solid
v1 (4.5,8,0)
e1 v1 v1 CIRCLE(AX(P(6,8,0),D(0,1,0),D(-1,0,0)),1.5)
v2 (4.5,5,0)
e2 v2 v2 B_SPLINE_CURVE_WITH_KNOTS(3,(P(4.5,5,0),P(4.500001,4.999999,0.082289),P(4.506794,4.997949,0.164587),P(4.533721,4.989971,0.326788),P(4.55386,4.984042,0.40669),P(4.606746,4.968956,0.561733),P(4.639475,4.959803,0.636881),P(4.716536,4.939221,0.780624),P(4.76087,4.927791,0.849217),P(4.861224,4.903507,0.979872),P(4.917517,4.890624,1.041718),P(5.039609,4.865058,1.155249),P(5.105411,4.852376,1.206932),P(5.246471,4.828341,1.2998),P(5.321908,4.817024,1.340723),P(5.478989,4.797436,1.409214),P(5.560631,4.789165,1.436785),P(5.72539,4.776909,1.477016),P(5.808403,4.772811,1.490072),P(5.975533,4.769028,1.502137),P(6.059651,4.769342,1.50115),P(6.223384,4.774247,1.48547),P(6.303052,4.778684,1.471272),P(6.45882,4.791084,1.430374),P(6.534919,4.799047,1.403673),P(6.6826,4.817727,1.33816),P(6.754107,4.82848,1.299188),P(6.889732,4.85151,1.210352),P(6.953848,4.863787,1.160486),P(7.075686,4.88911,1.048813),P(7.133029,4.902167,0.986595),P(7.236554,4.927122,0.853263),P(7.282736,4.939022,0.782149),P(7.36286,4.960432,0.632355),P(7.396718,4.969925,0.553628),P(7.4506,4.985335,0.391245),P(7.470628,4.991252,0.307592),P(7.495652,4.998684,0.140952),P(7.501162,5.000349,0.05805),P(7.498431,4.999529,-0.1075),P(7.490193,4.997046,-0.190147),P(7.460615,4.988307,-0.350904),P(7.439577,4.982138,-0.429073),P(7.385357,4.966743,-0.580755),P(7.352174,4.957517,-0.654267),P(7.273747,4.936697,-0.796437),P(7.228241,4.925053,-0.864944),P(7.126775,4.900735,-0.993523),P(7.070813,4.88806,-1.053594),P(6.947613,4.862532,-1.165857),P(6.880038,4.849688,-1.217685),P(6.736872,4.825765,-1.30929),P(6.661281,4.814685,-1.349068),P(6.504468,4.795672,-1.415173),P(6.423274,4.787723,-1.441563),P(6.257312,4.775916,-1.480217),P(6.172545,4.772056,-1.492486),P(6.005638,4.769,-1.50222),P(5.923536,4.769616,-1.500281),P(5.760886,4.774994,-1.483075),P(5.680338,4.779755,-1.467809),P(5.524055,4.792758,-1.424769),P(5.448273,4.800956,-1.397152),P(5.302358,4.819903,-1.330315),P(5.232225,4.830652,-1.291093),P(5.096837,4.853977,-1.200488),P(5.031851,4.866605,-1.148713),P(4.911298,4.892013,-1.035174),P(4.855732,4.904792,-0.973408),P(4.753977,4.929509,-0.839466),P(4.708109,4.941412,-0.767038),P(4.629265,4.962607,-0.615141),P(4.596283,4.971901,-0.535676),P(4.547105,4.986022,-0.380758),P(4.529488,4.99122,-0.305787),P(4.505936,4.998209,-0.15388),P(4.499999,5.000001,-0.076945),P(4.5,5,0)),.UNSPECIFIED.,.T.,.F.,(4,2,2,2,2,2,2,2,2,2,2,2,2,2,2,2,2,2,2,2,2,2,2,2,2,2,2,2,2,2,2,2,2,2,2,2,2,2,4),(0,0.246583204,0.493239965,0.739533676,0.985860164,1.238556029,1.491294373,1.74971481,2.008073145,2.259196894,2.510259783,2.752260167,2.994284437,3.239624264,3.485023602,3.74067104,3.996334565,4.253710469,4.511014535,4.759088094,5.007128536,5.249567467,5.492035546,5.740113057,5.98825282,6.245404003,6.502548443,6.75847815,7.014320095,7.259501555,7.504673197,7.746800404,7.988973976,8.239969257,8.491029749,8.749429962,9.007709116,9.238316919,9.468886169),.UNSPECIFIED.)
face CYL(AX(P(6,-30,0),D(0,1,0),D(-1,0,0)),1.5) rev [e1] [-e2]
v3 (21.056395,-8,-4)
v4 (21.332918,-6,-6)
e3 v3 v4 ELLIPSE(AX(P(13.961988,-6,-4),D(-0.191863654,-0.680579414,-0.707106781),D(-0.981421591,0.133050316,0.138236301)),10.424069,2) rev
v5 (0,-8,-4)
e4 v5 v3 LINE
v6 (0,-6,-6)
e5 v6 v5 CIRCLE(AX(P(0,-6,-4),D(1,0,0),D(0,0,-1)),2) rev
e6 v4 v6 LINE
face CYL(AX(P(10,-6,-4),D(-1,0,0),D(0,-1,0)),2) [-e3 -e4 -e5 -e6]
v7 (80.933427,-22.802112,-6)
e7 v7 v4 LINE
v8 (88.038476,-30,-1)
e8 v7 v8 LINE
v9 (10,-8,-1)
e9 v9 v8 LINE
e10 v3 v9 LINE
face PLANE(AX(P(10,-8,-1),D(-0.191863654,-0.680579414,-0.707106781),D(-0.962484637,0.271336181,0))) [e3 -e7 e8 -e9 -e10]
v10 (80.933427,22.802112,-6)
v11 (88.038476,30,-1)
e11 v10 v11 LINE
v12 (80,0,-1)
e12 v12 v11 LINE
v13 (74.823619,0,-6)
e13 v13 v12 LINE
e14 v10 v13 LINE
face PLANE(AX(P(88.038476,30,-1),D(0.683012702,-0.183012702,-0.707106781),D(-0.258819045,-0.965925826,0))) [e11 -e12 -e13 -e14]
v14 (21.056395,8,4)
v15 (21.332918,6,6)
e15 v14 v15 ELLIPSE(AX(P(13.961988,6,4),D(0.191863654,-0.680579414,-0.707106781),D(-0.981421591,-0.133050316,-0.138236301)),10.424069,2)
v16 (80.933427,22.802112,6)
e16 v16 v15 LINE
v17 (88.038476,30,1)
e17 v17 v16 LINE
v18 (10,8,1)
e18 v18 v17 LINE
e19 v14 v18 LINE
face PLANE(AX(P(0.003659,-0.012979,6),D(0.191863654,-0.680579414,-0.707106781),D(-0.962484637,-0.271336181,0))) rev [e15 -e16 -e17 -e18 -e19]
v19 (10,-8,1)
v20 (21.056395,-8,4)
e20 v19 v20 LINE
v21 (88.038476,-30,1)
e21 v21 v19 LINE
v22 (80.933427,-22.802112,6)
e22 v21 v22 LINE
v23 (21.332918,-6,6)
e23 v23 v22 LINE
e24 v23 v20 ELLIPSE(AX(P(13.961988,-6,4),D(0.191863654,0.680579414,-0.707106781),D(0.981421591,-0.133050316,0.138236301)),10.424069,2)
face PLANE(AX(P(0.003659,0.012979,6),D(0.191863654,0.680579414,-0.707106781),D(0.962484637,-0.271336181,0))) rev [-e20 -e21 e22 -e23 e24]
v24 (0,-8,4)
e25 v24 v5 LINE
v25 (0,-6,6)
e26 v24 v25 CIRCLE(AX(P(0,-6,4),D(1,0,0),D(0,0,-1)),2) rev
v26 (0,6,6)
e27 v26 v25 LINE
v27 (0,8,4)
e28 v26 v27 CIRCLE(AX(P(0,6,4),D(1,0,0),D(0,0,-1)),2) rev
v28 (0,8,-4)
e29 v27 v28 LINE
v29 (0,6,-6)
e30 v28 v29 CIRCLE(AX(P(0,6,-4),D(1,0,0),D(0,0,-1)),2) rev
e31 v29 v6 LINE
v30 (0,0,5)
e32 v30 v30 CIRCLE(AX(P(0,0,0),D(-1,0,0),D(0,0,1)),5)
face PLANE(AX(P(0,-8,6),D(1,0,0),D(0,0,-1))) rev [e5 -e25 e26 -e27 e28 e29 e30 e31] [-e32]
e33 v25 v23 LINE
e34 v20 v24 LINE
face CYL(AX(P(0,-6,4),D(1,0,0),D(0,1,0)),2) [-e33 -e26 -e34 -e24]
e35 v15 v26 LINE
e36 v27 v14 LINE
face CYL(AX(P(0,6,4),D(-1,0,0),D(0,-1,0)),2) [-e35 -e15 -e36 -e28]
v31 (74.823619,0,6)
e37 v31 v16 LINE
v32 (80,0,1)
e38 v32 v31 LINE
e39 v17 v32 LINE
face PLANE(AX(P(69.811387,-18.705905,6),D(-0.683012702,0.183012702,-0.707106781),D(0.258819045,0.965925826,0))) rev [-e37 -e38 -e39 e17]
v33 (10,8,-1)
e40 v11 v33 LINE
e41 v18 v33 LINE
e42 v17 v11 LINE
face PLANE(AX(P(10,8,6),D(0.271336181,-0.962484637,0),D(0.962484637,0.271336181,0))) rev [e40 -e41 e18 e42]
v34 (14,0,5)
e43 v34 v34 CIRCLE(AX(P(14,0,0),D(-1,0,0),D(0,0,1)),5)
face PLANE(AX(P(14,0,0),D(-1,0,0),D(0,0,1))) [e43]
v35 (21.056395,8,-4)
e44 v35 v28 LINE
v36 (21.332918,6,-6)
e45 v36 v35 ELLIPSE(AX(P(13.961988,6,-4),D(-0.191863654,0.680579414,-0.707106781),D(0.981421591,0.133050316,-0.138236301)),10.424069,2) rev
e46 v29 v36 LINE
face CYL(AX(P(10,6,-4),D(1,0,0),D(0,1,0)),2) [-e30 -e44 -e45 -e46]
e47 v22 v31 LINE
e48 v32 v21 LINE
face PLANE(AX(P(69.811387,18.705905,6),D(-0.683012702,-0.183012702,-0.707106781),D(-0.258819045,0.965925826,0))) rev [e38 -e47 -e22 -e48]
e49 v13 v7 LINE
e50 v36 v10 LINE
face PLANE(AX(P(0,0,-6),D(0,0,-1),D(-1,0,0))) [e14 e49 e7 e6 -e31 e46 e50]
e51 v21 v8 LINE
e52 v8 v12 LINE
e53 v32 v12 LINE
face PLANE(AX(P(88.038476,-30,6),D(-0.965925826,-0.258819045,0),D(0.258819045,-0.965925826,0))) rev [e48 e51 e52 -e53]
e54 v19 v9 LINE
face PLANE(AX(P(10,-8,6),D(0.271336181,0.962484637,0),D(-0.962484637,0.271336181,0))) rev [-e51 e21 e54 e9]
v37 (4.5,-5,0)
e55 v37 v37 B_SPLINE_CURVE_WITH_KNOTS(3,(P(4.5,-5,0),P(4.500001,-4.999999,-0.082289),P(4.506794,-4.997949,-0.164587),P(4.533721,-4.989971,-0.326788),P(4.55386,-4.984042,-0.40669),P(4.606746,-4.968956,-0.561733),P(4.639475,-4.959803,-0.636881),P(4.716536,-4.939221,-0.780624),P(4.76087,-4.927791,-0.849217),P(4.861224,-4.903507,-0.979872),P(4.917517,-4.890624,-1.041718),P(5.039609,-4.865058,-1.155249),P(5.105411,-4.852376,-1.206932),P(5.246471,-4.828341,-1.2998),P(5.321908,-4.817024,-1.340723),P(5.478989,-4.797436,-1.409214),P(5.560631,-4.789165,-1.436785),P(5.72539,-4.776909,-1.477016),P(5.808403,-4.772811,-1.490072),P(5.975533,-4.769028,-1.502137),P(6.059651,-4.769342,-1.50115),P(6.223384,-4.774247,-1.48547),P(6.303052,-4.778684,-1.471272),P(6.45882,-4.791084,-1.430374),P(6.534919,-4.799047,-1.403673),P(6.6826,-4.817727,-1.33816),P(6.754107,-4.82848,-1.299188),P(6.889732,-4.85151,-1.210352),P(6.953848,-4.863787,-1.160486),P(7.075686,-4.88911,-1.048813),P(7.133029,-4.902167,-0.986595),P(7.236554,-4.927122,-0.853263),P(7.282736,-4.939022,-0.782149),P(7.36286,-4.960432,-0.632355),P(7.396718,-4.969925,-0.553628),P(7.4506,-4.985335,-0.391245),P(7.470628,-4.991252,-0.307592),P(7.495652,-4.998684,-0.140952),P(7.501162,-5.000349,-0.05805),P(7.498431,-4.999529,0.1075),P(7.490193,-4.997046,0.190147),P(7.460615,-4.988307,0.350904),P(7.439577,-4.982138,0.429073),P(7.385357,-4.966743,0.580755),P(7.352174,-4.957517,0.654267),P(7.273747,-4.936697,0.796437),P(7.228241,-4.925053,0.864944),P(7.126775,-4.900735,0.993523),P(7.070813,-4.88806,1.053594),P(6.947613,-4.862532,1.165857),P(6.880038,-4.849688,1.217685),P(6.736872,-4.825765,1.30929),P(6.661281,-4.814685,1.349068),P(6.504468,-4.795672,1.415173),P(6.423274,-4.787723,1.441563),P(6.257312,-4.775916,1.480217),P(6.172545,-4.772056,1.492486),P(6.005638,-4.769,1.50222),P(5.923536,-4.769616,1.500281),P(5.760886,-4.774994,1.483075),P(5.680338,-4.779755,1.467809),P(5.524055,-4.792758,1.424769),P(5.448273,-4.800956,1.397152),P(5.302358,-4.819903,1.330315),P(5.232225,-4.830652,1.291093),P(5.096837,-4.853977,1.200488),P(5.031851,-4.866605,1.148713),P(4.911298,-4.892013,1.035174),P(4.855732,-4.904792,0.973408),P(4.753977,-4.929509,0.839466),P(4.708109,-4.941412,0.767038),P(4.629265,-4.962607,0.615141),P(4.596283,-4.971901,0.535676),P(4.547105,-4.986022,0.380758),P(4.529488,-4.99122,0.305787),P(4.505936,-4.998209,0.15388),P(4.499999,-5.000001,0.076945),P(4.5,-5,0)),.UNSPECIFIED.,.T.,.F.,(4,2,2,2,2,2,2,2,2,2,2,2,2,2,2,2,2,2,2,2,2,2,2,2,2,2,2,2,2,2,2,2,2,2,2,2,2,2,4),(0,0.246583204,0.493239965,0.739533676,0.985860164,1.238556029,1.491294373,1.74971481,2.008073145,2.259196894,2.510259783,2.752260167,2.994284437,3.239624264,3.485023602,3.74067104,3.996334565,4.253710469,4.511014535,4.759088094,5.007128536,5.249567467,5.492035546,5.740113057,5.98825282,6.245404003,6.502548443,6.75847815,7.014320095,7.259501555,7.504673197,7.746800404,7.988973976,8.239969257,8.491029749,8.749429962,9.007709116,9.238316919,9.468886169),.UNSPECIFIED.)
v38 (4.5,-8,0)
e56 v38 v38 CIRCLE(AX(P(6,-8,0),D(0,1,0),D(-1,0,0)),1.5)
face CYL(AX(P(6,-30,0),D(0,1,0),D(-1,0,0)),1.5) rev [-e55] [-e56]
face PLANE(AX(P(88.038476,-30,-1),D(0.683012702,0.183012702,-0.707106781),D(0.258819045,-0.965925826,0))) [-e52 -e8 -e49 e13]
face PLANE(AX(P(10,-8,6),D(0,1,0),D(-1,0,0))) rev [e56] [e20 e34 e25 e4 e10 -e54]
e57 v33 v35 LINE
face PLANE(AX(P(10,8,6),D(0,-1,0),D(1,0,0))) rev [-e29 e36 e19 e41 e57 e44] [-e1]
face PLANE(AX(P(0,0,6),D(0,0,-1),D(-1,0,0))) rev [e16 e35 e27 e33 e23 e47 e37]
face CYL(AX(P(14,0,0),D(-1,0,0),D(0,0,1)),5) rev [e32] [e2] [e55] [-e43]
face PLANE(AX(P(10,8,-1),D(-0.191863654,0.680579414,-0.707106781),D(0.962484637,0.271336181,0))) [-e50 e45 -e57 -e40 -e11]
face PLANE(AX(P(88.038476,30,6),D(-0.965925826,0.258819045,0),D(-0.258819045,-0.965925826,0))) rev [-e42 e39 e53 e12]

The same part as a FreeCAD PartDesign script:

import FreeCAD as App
import Part
import Sketcher
Q = App.Units.Quantity


def edges_at(feature, points):
    """Names of the edges that pass closest to the given points."""
    edges = feature.Shape.Edges
    near = lambda p: min(range(len(edges)), key=lambda i: edges[i].distToShape(Part.Vertex(*p))[0])
    return sorted({f"Edge{near(p) + 1}" for p in points})


def add_polygon(sketch, points):
    """Adds a closed chain of lines whose ends are joined by coincident constraints."""
    first, n = sketch.GeometryCount, len(points)
    for a, b in zip(points, points[1:] + points[:1]):
        sketch.addGeometry(Part.LineSegment(App.Vector(*a, 0), App.Vector(*b, 0)), False)
    for i in range(n):
        sketch.addConstraint(Sketcher.Constraint("Coincident", first + i, 2, first + (i + 1) % n, 1))

doc = App.newDocument("Part")
body = doc.addObject("PartDesign::Body", "Body")

sketch1 = body.newObject("Sketcher::SketchObject", "Sketch")
sketch1.AttachmentSupport = (doc.getObject("XY_Plane"), [""])
sketch1.MapMode = "FlatFace"
add_polygon(sketch1, [(10, -8), (88, -30), (80, 0), (88, 30), (10, 8), (0, 8), (0, -8)])
sketch1.addConstraint(Sketcher.Constraint("Horizontal", 4))
sketch1.addConstraint(Sketcher.Constraint("Vertical", 5))
sketch1.addConstraint(Sketcher.Constraint("Horizontal", 6))
sketch1.addConstraint(Sketcher.Constraint("Symmetric", 4, 2, 5, 2, -1, 1))
sketch1.addConstraint(Sketcher.Constraint("Symmetric", 0, 2, 2, 2, -1))
sketch1.addConstraint(Sketcher.Constraint("PointOnObject", 1, 2, -1))
sketch1.addConstraint(Sketcher.Constraint("Vertical", 3, 2, 6, 2))
sketch1.addConstraint(Sketcher.Constraint("DistanceX", 4, 2, 4, 1, Q("10 mm")))
sketch1.addConstraint(Sketcher.Constraint("DistanceY", 5, 2, 5, 1, Q("16 mm")))
sketch1.addConstraint(Sketcher.Constraint("Angle", 1, Q("105 deg")))
sketch1.addConstraint(Sketcher.Constraint("DistanceY", 0, 2, -1, 1, Q("30 mm")))
sketch1.addConstraint(Sketcher.Constraint("DistanceX", -1, 1, 1, 2, Q("80 mm")))
pad1 = body.newObject("PartDesign::Pad", "Pad")
pad1.Profile = sketch1
pad1.Length = 12
pad1.Midplane = True

sketch2 = body.newObject("Sketcher::SketchObject", "Sketch001")
sketch2.AttachmentSupport = (doc.getObject("YZ_Plane"), [""])
sketch2.MapMode = "FlatFace"
sketch2.addGeometry(Part.Circle(App.Vector(0, 0, 0), App.Vector(0, 0, 1), 5), False)
sketch2.addConstraint(Sketcher.Constraint("Coincident", 0, 3, -1, 1))
sketch2.addConstraint(Sketcher.Constraint("Diameter", 0, Q("10 mm")))
pocket1 = body.newObject("PartDesign::Pocket", "Pocket")
pocket1.Profile = sketch2
pocket1.Length = 14
pocket1.Reversed = True

sketch3 = body.newObject("Sketcher::SketchObject", "Sketch002")
sketch3.AttachmentSupport = (doc.getObject("XZ_Plane"), [""])
sketch3.MapMode = "FlatFace"
sketch3.AttachmentOffset = App.Placement(App.Vector(0, 0, -8), App.Rotation())
sketch3.addGeometry(Part.Circle(App.Vector(6, 0, 0), App.Vector(0, 0, 1), 1.5), False)
sketch3.addConstraint(Sketcher.Constraint("PointOnObject", 0, 3, -1))
sketch3.addConstraint(Sketcher.Constraint("Diameter", 0, Q("3 mm")))
sketch3.addConstraint(Sketcher.Constraint("DistanceX", -1, 1, 0, 3, Q("6 mm")))
pocket2 = body.newObject("PartDesign::Pocket", "Pocket001")
pocket2.Profile = sketch3
pocket2.Type = "ThroughAll"
pocket2.Reversed = True
doc.recompute()

chamfer = body.newObject("PartDesign::Chamfer", "Chamfer")
chamfer.Base = (pocket2, edges_at(pocket2, [
    (49.019, -19, 6),
    (84.019, -15, 6),
    (84.019, 15, 6),
    (49.019, 19, 6),
    (49.019, 19, -6),
    (84.019, 15, -6),
    (84.019, -15, -6),
    (49.019, -19, -6),
]))
chamfer.Size = 5
doc.recompute()

fillet = body.newObject("PartDesign::Fillet", "Fillet")
fillet.Base = (chamfer, edges_at(chamfer, [
    (14.214, -8, 6),
    (14.214, 8, 6),
    (14.214, -8, -6),
    (14.214, 8, -6),
]))
fillet.Radius = 2

doc.recompute()
